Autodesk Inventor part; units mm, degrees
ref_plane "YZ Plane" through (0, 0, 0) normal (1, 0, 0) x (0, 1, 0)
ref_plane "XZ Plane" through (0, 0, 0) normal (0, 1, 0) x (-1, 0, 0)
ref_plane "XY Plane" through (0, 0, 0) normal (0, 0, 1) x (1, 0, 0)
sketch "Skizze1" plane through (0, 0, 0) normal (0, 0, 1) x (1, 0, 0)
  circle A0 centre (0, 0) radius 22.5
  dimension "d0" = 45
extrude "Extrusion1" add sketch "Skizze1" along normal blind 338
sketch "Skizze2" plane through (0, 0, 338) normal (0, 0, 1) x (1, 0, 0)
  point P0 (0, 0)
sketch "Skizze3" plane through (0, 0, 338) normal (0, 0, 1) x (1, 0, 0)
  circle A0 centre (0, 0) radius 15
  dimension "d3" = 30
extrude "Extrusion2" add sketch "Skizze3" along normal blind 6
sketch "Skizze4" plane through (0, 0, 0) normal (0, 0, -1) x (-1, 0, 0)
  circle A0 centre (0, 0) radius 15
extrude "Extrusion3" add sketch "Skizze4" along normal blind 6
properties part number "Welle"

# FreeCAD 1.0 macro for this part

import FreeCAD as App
import Part
import Sketcher

V = App.Vector

doc = App.newDocument("Part")
body = doc.addObject("PartDesign::Body", "Body")

# Sketch on XY plane
sketch1 = body.newObject("Sketcher::SketchObject", "Sketch")
sketch1.AttachmentSupport = (doc.getObject("XY_Plane"), [""])
sketch1.MapMode = "FlatFace"
sketch1.addGeometry(Part.Circle(V(0, 0, 0), V(0, 0, 1), 22), False)
sketch1.addConstraint(Sketcher.Constraint("Coincident", 0, 3, -1, 1))
sketch1.addConstraint(Sketcher.Constraint("Diameter", 0, 45.0))
pad1 = body.newObject("PartDesign::Pad", "Pad")
pad1.Profile = sketch1
pad1.Length = 338

# Sketch on XY plane
sketch2 = body.newObject("Sketcher::SketchObject", "Sketch001")
sketch2.AttachmentSupport = (doc.getObject("XY_Plane"), [""])
sketch2.MapMode = "FlatFace"
sketch2.AttachmentOffset = App.Placement(V(0, 0, 338), App.Rotation())
sketch2.addGeometry(Part.Circle(V(0, 0, 0), V(0, 0, 1), 15), False)
sketch2.addConstraint(Sketcher.Constraint("Coincident", 0, 3, -1, 1))
sketch2.addConstraint(Sketcher.Constraint("Diameter", 0, 30.0))
pad2 = body.newObject("PartDesign::Pad", "Pad001")
pad2.Profile = sketch2
pad2.Length = 6

# Sketch on XY plane
sketch3 = body.newObject("Sketcher::SketchObject", "Sketch002")
sketch3.AttachmentSupport = (doc.getObject("XY_Plane"), [""])
sketch3.MapMode = "FlatFace"
sketch3.addGeometry(Part.Circle(V(0, 0, 0), V(0, 0, 1), 15), False)
sketch3.addConstraint(Sketcher.Constraint("Coincident", 0, 3, -1, 1))
sketch3.addConstraint(Sketcher.Constraint("Diameter", 0, 30.0))
pad3 = body.newObject("PartDesign::Pad", "Pad002")
pad3.Profile = sketch3
pad3.Length = 6
pad3.Reversed = True

doc.recompute()
